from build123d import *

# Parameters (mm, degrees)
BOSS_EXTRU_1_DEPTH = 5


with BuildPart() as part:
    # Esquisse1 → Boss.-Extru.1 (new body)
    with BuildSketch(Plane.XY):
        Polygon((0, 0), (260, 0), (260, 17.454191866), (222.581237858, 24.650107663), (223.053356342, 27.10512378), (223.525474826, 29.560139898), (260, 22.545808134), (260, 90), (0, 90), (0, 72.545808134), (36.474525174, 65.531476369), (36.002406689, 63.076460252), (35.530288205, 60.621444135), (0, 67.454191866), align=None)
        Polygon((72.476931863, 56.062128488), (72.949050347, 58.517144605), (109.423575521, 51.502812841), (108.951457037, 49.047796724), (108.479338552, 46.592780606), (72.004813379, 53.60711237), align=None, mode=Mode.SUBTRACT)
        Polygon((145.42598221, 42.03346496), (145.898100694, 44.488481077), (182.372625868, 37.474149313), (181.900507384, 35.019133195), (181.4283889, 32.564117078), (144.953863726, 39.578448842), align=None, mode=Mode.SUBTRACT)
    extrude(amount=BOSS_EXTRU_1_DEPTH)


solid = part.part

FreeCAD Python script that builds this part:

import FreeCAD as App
import Part
import Sketcher

doc = App.newDocument("Part")
body = doc.addObject("PartDesign::Body", "Body")

# Sketch on XY plane
sketch1 = doc.addObject("Sketcher::SketchObject", "Sketch")
body.addObject(sketch1)
sketch1.AttachmentSupport = (doc.XY_Plane, [""])
sketch1.MapMode = "FlatFace"
sketch1.addGeometry(Part.LineSegment(App.Vector(0, 0, 0), App.Vector(260, 0, 0)), False)
sketch1.addGeometry(Part.LineSegment(App.Vector(260, 0, 0), App.Vector(260, 17.454192, 0)), False)
sketch1.addGeometry(Part.LineSegment(App.Vector(260, 17.454192, 0), App.Vector(222.581238, 24.650108, 0)), False)
sketch1.addGeometry(Part.LineSegment(App.Vector(222.581238, 24.650108, 0), App.Vector(223.053356, 27.105124, 0)), False)
sketch1.addGeometry(Part.LineSegment(App.Vector(223.053356, 27.105124, 0), App.Vector(223.525475, 29.56014, 0)), False)
sketch1.addGeometry(Part.LineSegment(App.Vector(223.525475, 29.56014, 0), App.Vector(260, 22.545808, 0)), False)
sketch1.addGeometry(Part.LineSegment(App.Vector(260, 22.545808, 0), App.Vector(260, 90, 0)), False)
sketch1.addGeometry(Part.LineSegment(App.Vector(260, 90, 0), App.Vector(0, 90, 0)), False)
sketch1.addGeometry(Part.LineSegment(App.Vector(0, 90, 0), App.Vector(0, 72.545808, 0)), False)
sketch1.addGeometry(Part.LineSegment(App.Vector(0, 72.545808, 0), App.Vector(36.474525, 65.531476, 0)), False)
sketch1.addGeometry(Part.LineSegment(App.Vector(36.474525, 65.531476, 0), App.Vector(36.002407, 63.07646, 0)), False)
sketch1.addGeometry(Part.LineSegment(App.Vector(36.002407, 63.07646, 0), App.Vector(35.530288, 60.621444, 0)), False)
sketch1.addGeometry(Part.LineSegment(App.Vector(35.530288, 60.621444, 0), App.Vector(0, 67.454192, 0)), False)
sketch1.addGeometry(Part.LineSegment(App.Vector(0, 67.454192, 0), App.Vector(0, 0, 0)), False)
sketch1.addGeometry(Part.LineSegment(App.Vector(144.953864, 39.578449, 0), App.Vector(145.425982, 42.033465, 0)), False)
sketch1.addGeometry(Part.LineSegment(App.Vector(145.425982, 42.033465, 0), App.Vector(145.898101, 44.488481, 0)), False)
sketch1.addGeometry(Part.LineSegment(App.Vector(145.898101, 44.488481, 0), App.Vector(182.372626, 37.474149, 0)), False)
sketch1.addGeometry(Part.LineSegment(App.Vector(182.372626, 37.474149, 0), App.Vector(181.900507, 35.019133, 0)), False)
sketch1.addGeometry(Part.LineSegment(App.Vector(181.900507, 35.019133, 0), App.Vector(181.428389, 32.564117, 0)), False)
sketch1.addGeometry(Part.LineSegment(App.Vector(181.428389, 32.564117, 0), App.Vector(144.953864, 39.578449, 0)), False)
sketch1.addGeometry(Part.LineSegment(App.Vector(72.004813, 53.607112, 0), App.Vector(72.476932, 56.062128, 0)), False)
sketch1.addGeometry(Part.LineSegment(App.Vector(72.476932, 56.062128, 0), App.Vector(72.94905, 58.517145, 0)), False)
sketch1.addGeometry(Part.LineSegment(App.Vector(72.94905, 58.517145, 0), App.Vector(109.423576, 51.502813, 0)), False)
sketch1.addGeometry(Part.LineSegment(App.Vector(109.423576, 51.502813, 0), App.Vector(108.951457, 49.047797, 0)), False)
sketch1.addGeometry(Part.LineSegment(App.Vector(108.951457, 49.047797, 0), App.Vector(108.479339, 46.592781, 0)), False)
sketch1.addGeometry(Part.LineSegment(App.Vector(108.479339, 46.592781, 0), App.Vector(72.004813, 53.607112, 0)), False)
sketch1.addConstraint(Sketcher.Constraint("Coincident", 0, 2, 1, 1))
sketch1.addConstraint(Sketcher.Constraint("Coincident", 1, 2, 2, 1))
sketch1.addConstraint(Sketcher.Constraint("Coincident", 2, 2, 3, 1))
sketch1.addConstraint(Sketcher.Constraint("Coincident", 3, 2, 4, 1))
sketch1.addConstraint(Sketcher.Constraint("Coincident", 4, 2, 5, 1))
sketch1.addConstraint(Sketcher.Constraint("Coincident", 5, 2, 6, 1))
sketch1.addConstraint(Sketcher.Constraint("Coincident", 6, 2, 7, 1))
sketch1.addConstraint(Sketcher.Constraint("Coincident", 7, 2, 8, 1))
sketch1.addConstraint(Sketcher.Constraint("Coincident", 8, 2, 9, 1))
sketch1.addConstraint(Sketcher.Constraint("Coincident", 9, 2, 10, 1))
sketch1.addConstraint(Sketcher.Constraint("Coincident", 10, 2, 11, 1))
sketch1.addConstraint(Sketcher.Constraint("Coincident", 11, 2, 12, 1))
sketch1.addConstraint(Sketcher.Constraint("Coincident", 12, 2, 13, 1))
sketch1.addConstraint(Sketcher.Constraint("Coincident", 13, 2, 0, 1))
sketch1.addConstraint(Sketcher.Constraint("Coincident", 14, 2, 15, 1))
sketch1.addConstraint(Sketcher.Constraint("Coincident", 15, 2, 16, 1))
sketch1.addConstraint(Sketcher.Constraint("Coincident", 16, 2, 17, 1))
sketch1.addConstraint(Sketcher.Constraint("Coincident", 17, 2, 18, 1))
sketch1.addConstraint(Sketcher.Constraint("Coincident", 18, 2, 19, 1))
sketch1.addConstraint(Sketcher.Constraint("Coincident", 19, 2, 14, 1))
sketch1.addConstraint(Sketcher.Constraint("Coincident", 20, 2, 21, 1))
sketch1.addConstraint(Sketcher.Constraint("Coincident", 21, 2, 22, 1))
sketch1.addConstraint(Sketcher.Constraint("Coincident", 22, 2, 23, 1))
sketch1.addConstraint(Sketcher.Constraint("Coincident", 23, 2, 24, 1))
sketch1.addConstraint(Sketcher.Constraint("Coincident", 24, 2, 25, 1))
sketch1.addConstraint(Sketcher.Constraint("Coincident", 25, 2, 20, 1))
sketch1.addConstraint(Sketcher.Constraint("Horizontal", 0))
sketch1.addConstraint(Sketcher.Constraint("Vertical", 1))
sketch1.addConstraint(Sketcher.Constraint("Vertical", 6))
sketch1.addConstraint(Sketcher.Constraint("Horizontal", 7))
sketch1.addConstraint(Sketcher.Constraint("Vertical", 8))
sketch1.addConstraint(Sketcher.Constraint("Vertical", 13))
sketch1.addConstraint(Sketcher.Constraint("Coincident", 13, 2, -1, 1))
sketch1.addConstraint(Sketcher.Constraint("PointOnObject", 7, 2, -2))
sketch1.addConstraint(Sketcher.Constraint("DistanceX", 0, 1, 0, 2, 260.0))
sketch1.addConstraint(Sketcher.Constraint("DistanceX", 7, 2, 7, 1, 260.0))
sketch1.addConstraint(Sketcher.Constraint("DistanceY", -1, 1, 6, 2, 90.0))
sketch1.addConstraint(Sketcher.Constraint("Distance", 3, 2.5))
sketch1.addConstraint(Sketcher.Constraint("Distance", 4, 2.5))
sketch1.addConstraint(Sketcher.Constraint("Distance", 10, 2.5))
sketch1.addConstraint(Sketcher.Constraint("Distance", 11, 2.5))
sketch1.addConstraint(Sketcher.Constraint("Distance", 14, 2.5))
sketch1.addConstraint(Sketcher.Constraint("Distance", 15, 2.5))
sketch1.addConstraint(Sketcher.Constraint("Distance", 17, 2.5))
sketch1.addConstraint(Sketcher.Constraint("Distance", 18, 2.5))
sketch1.addConstraint(Sketcher.Constraint("Distance", 20, 2.5))
sketch1.addConstraint(Sketcher.Constraint("Distance", 21, 2.5))
sketch1.addConstraint(Sketcher.Constraint("Distance", 23, 2.5))
sketch1.addConstraint(Sketcher.Constraint("Distance", 24, 2.5))
sketch1.addConstraint(Sketcher.Constraint("DistanceY", 1, 1, 1, 2, 17.454192))
sketch1.addConstraint(Sketcher.Constraint("DistanceY", 6, 1, 6, 2, 67.454192))
sketch1.addConstraint(Sketcher.Constraint("DistanceY", 8, 2, 8, 1, 17.454192))
sketch1.addConstraint(Sketcher.Constraint("DistanceY", 13, 2, 13, 1, 67.454192))
sketch1.addConstraint(Sketcher.Constraint("DistanceX", -1, 1, 15, 2, 145.898101))
sketch1.addConstraint(Sketcher.Constraint("DistanceY", 5, 2, 2, 2, 2.1043))
sketch1.addConstraint(Sketcher.Constraint("DistanceY", 16, 2, 19, 2, 2.1043))
sketch1.addConstraint(Sketcher.Constraint("DistanceY", 21, 2, 11, 2, 2.1043))
sketch1.addConstraint(Sketcher.Constraint("Distance", 12, 36.181319))
sketch1.addConstraint(Sketcher.Constraint("DistanceY", -1, 1, 4, 2, 29.56014))
sketch1.addConstraint(Sketcher.Constraint("DistanceY", -1, 1, 10, 2, 63.07646))
sketch1.addConstraint(Sketcher.Constraint("DistanceX", -1, 1, 11, 2, 35.530288))
sketch1.addConstraint(Sketcher.Constraint("DistanceY", -1, 1, 15, 2, 44.488481))
sketch1.addConstraint(Sketcher.Constraint("DistanceY", -1, 1, 16, 2, 37.474149))
sketch1.addConstraint(Sketcher.Constraint("DistanceX", -1, 1, 18, 2, 181.428389))
sketch1.addConstraint(Sketcher.Constraint("DistanceX", -1, 1, 20, 2, 72.476932))
sketch1.addConstraint(Sketcher.Constraint("DistanceY", -1, 1, 20, 2, 56.062128))
sketch1.addConstraint(Sketcher.Constraint("DistanceX", -1, 1, 24, 2, 108.479339))
sketch1.addConstraint(Sketcher.Constraint("DistanceY", -1, 1, 24, 2, 46.592781))
sketch1.addConstraint(Sketcher.Constraint("DistanceX", 2, 2, 3, 2, 0.472118))
sketch1.addConstraint(Sketcher.Constraint("DistanceY", 9, 2, 8, 2, 7.014332))
sketch1.addConstraint(Sketcher.Constraint("DistanceX", 9, 2, 4, 2, 187.05095))
sketch1.addConstraint(Sketcher.Constraint("DistanceY", 3, 2, 14, 2, 14.928341))
sketch1.addConstraint(Sketcher.Constraint("DistanceX", 16, 2, 4, 2, 41.152849))
sketch1.addConstraint(Sketcher.Constraint("DistanceX", 17, 2, 16, 2, 0.472118))
sketch1.addConstraint(Sketcher.Constraint("DistanceY", 15, 2, 22, 2, 7.014332))
sketch1.addConstraint(Sketcher.Constraint("DistanceX", 23, 2, 22, 2, 0.472118))
sketch1.addConstraint(Sketcher.Constraint("DistanceX", 25, 2, 20, 2, 0.472118))
pad1 = doc.addObject("PartDesign::Pad", "Pad")
body.addObject(pad1)
pad1.Profile = sketch1
pad1.Length = 5

doc.recompute()
